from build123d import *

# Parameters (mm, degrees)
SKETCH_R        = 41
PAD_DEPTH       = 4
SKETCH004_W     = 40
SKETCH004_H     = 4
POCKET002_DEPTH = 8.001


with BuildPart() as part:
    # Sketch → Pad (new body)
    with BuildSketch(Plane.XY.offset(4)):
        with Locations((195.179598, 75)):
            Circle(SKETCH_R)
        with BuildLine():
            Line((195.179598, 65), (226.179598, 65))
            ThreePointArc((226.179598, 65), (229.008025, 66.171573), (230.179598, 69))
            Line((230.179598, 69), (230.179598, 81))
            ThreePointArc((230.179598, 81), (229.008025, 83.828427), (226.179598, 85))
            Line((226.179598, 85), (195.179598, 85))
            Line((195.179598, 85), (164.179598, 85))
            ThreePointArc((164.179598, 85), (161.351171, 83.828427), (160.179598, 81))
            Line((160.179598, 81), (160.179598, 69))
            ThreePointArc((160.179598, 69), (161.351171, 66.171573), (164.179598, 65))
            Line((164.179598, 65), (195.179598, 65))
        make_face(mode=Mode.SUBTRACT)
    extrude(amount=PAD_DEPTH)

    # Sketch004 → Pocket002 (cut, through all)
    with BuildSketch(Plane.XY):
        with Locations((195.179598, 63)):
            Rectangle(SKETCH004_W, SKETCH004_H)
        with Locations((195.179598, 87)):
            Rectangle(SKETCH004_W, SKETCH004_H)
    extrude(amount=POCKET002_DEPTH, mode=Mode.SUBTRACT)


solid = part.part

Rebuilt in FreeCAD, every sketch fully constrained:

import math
import FreeCAD as App
import Part
import Sketcher
from FreeCAD import Vector
Q = App.Units.Quantity


def add_polygon(sketch, points):
    """Adds a closed chain of lines whose ends are joined by coincident constraints."""
    first, n = sketch.GeometryCount, len(points)
    for a, b in zip(points, points[1:] + points[:1]):
        sketch.addGeometry(Part.LineSegment(App.Vector(*a, 0), App.Vector(*b, 0)), False)
    for i in range(n):
        sketch.addConstraint(Sketcher.Constraint("Coincident", first + i, 2, first + (i + 1) % n, 1))

doc = App.newDocument("Part")
body = doc.addObject("PartDesign::Body", "Body")

# Sketch on XY plane
sketch1 = doc.addObject("Sketcher::SketchObject", "Sketch")
body.addObject(sketch1)
sketch1.AttachmentSupport = (doc.XY_Plane, [""])
sketch1.MapMode = "FlatFace"
sketch1.AttachmentOffset = App.Placement(Vector(0, 0, 4), App.Rotation())
sketch1.addGeometry([
    Part.Circle(Vector(195.2, 75, 0), Vector(0, 0, 1), 41),  # 0
    Part.ArcOfCircle(Part.Circle(Vector(226.2, 69, 0), Vector(0, 0, 1), 4), math.radians(-90), math.radians(0)),  # 1
    Part.LineSegment(Vector(226.2, 65, 0), Vector(164.2, 65, 0)),  # 2
    Part.ArcOfCircle(Part.Circle(Vector(164.2, 69, 0), Vector(0, 0, 1), 4), math.radians(-180), math.radians(-90)),  # 3
    Part.LineSegment(Vector(160.2, 69, 0), Vector(160.2, 81, 0)),  # 4
    Part.ArcOfCircle(Part.Circle(Vector(164.2, 81, 0), Vector(0, 0, 1), 4), math.radians(90), math.radians(180)),  # 5
    Part.LineSegment(Vector(164.2, 85, 0), Vector(226.2, 85, 0)),  # 6
    Part.ArcOfCircle(Part.Circle(Vector(226.2, 81, 0), Vector(0, 0, 1), 4), math.radians(0), math.radians(90)),  # 7
    Part.LineSegment(Vector(230.2, 81, 0), Vector(230.2, 69, 0)),  # 8
], False)
sketch1.addConstraint([
    Sketcher.Constraint("Tangent", 1, 1, 2, 1),
    Sketcher.Constraint("Tangent", 2, 2, 3, 2),
    Sketcher.Constraint("Tangent", 3, 1, 4, 1),
    Sketcher.Constraint("Tangent", 4, 2, 5, 2),
    Sketcher.Constraint("Tangent", 5, 1, 6, 1),
    Sketcher.Constraint("Tangent", 6, 2, 7, 2),
    Sketcher.Constraint("Tangent", 7, 1, 8, 1),
    Sketcher.Constraint("Tangent", 8, 2, 1, 2),
    Sketcher.Constraint("Horizontal", 2),
    Sketcher.Constraint("Vertical", 4),
    Sketcher.Constraint("Horizontal", 6),
    Sketcher.Constraint("Vertical", 8),
    Sketcher.Constraint("Equal", 1, 3),
    Sketcher.Constraint("Equal", 3, 5),
    Sketcher.Constraint("Equal", 5, 7),
    Sketcher.Constraint("Diameter", 0, Q("82 mm")),
    Sketcher.Constraint("Radius", 1, Q("4 mm")),
    Sketcher.Constraint("DistanceX", 2, 2, 2, 1, Q("62 mm")),
    Sketcher.Constraint("DistanceY", 4, 1, 4, 2, Q("12 mm")),
    Sketcher.Constraint("DistanceY", -1, 1, 0, 3, Q("75 mm")),
    Sketcher.Constraint("DistanceY", -1, 1, 1, 3, Q("69 mm")),
    Sketcher.Constraint("DistanceX", 0, 3, 1, 3, Q("31 mm")),
    Sketcher.Constraint("DistanceX", -1, 1, 0, 3, Q("195.179598 mm")),
])
pad1 = doc.addObject("PartDesign::Pad", "Pad")
body.addObject(pad1)
pad1.Profile = sketch1
pad1.Length = 4

# Sketch on XY plane
sketch2 = doc.addObject("Sketcher::SketchObject", "Sketch001")
body.addObject(sketch2)
sketch2.AttachmentSupport = (doc.XY_Plane, [""])
sketch2.MapMode = "FlatFace"
add_polygon(sketch2, [(175.2, 65), (175.2, 61), (215.2, 61), (215.2, 65)])  # lines 0-3
add_polygon(sketch2, [(175.2, 89), (175.2, 85), (215.2, 85), (215.2, 89)])  # lines 4-7
sketch2.addConstraint([
    Sketcher.Constraint("Vertical", 0),
    Sketcher.Constraint("Horizontal", 1),
    Sketcher.Constraint("Vertical", 2),
    Sketcher.Constraint("Horizontal", 3),
    Sketcher.Constraint("Vertical", 4),
    Sketcher.Constraint("Horizontal", 5),
    Sketcher.Constraint("Vertical", 6),
    Sketcher.Constraint("Horizontal", 7),
    Sketcher.Constraint("Vertical", 3, 2, 4, 2),
    Sketcher.Constraint("Vertical", 2, 2, 5, 2),
    Sketcher.Constraint("Equal", 2, 4),
    Sketcher.Constraint("DistanceX", 1, 1, 1, 2, Q("40 mm")),
    Sketcher.Constraint("DistanceY", 0, 2, 0, 1, Q("4 mm")),
    Sketcher.Constraint("DistanceY", -1, 1, 0, 2, Q("61 mm")),
    Sketcher.Constraint("DistanceY", -1, 1, 4, 2, Q("85 mm")),
    Sketcher.Constraint("DistanceX", -1, 1, 0, 2, Q("175.179598 mm")),
])
pocket1 = doc.addObject("PartDesign::Pocket", "Pocket")
body.addObject(pocket1)
pocket1.Profile = sketch2
pocket1.Type = "ThroughAll"
pocket1.Reversed = True

doc.recompute()
